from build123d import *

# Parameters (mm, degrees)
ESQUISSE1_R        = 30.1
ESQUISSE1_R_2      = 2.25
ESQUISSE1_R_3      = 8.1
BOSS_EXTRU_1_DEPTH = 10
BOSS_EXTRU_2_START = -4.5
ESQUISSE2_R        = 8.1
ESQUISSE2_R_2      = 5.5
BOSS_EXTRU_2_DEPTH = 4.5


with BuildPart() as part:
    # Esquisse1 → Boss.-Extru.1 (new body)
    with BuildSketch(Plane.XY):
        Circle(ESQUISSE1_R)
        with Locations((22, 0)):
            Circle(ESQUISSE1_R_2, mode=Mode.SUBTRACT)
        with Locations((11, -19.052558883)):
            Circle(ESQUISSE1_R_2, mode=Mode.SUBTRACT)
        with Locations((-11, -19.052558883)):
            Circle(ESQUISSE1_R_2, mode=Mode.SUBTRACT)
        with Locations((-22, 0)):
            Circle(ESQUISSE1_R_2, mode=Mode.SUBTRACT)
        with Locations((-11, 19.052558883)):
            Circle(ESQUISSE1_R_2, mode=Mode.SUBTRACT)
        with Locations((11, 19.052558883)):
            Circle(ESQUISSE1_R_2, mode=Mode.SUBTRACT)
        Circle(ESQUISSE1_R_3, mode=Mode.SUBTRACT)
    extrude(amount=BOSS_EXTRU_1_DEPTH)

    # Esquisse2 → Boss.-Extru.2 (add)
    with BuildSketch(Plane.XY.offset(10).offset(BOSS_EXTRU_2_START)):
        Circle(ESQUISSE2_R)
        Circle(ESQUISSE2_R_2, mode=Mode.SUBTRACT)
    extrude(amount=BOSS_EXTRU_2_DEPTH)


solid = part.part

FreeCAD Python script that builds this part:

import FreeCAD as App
import Part
import Sketcher

V = App.Vector

doc = App.newDocument("Part")
body = doc.addObject("PartDesign::Body", "Body")

# Sketch on XY plane
sketch1 = body.newObject("Sketcher::SketchObject", "Sketch")
sketch1.AttachmentSupport = (doc.getObject("XY_Plane"), [""])
sketch1.MapMode = "FlatFace"
sketch1.addGeometry([
    Part.Circle(V(0, 0, 0), V(0, 0, 1), 30.1),  # 0
    Part.Circle(V(-11, -19.052559, 0), V(0, 0, 1), 2.25),  # 1
    Part.Circle(V(-22, 0, 0), V(0, 0, 1), 2.25),  # 2
    Part.Circle(V(11, -19.052559, 0), V(0, 0, 1), 2.25),  # 3
    Part.Circle(V(0, 0, 0), V(0, 0, 1), 8.1),  # 4
    Part.Circle(V(22, 0, 0), V(0, 0, 1), 2.25),  # 5
    Part.Circle(V(-11, 19.052559, 0), V(0, 0, 1), 2.25),  # 6
    Part.Circle(V(11, 19.052559, 0), V(0, 0, 1), 2.25),  # 7
], False)
sketch1.addConstraint([
    Sketcher.Constraint("Coincident", 0, 3, -1, 1),
    Sketcher.Constraint("Coincident", 4, 3, -1, 1),
    Sketcher.Constraint("Equal", 1, 2),
    Sketcher.Constraint("Equal", 2, 3),
    Sketcher.Constraint("Equal", 3, 5),
    Sketcher.Constraint("Equal", 5, 6),
    Sketcher.Constraint("Equal", 6, 7),
    Sketcher.Constraint("Symmetric", 2, 3, 5, 3, -1, 1),
    Sketcher.Constraint("Symmetric", 3, 3, 6, 3, -1, 1),
    Sketcher.Constraint("Symmetric", 1, 3, 7, 3, -1, 1),
    Sketcher.Constraint("Symmetric", 1, 3, 3, 3, -2),
    Sketcher.Constraint("PointOnObject", 2, 3, -1),
    Sketcher.Constraint("Diameter", 0, 60.2),
    Sketcher.Constraint("Diameter", 1, 4.5),
    Sketcher.Constraint("Diameter", 4, 16.2),
    Sketcher.Constraint("DistanceX", 1, 3, -1, 1, 11.0),
    Sketcher.Constraint("DistanceX", 2, 3, -1, 1, 22.0),
    Sketcher.Constraint("DistanceY", 1, 3, -1, 1, 19.052559),
])
pad1 = body.newObject("PartDesign::Pad", "Pad")
pad1.Profile = sketch1
pad1.Length = 10

# Sketch on XY plane
sketch2 = body.newObject("Sketcher::SketchObject", "Sketch001")
sketch2.AttachmentSupport = (doc.getObject("XY_Plane"), [""])
sketch2.MapMode = "FlatFace"
sketch2.AttachmentOffset = App.Placement(V(0, 0, 5.5), App.Rotation())
sketch2.addGeometry([
    Part.Circle(V(0, 0, 0), V(0, 0, 1), 8.1),
    Part.Circle(V(0, 0, 0), V(0, 0, 1), 5.5),
], False)
sketch2.addConstraint([
    Sketcher.Constraint("Coincident", 0, 3, -1, 1),
    Sketcher.Constraint("Coincident", 1, 3, -1, 1),
    Sketcher.Constraint("Diameter", 1, 11.0),
    Sketcher.Constraint("Diameter", 0, 16.2),
])
pad2 = body.newObject("PartDesign::Pad", "Pad001")
pad2.Profile = sketch2
pad2.Length = 4.5

doc.recompute()
